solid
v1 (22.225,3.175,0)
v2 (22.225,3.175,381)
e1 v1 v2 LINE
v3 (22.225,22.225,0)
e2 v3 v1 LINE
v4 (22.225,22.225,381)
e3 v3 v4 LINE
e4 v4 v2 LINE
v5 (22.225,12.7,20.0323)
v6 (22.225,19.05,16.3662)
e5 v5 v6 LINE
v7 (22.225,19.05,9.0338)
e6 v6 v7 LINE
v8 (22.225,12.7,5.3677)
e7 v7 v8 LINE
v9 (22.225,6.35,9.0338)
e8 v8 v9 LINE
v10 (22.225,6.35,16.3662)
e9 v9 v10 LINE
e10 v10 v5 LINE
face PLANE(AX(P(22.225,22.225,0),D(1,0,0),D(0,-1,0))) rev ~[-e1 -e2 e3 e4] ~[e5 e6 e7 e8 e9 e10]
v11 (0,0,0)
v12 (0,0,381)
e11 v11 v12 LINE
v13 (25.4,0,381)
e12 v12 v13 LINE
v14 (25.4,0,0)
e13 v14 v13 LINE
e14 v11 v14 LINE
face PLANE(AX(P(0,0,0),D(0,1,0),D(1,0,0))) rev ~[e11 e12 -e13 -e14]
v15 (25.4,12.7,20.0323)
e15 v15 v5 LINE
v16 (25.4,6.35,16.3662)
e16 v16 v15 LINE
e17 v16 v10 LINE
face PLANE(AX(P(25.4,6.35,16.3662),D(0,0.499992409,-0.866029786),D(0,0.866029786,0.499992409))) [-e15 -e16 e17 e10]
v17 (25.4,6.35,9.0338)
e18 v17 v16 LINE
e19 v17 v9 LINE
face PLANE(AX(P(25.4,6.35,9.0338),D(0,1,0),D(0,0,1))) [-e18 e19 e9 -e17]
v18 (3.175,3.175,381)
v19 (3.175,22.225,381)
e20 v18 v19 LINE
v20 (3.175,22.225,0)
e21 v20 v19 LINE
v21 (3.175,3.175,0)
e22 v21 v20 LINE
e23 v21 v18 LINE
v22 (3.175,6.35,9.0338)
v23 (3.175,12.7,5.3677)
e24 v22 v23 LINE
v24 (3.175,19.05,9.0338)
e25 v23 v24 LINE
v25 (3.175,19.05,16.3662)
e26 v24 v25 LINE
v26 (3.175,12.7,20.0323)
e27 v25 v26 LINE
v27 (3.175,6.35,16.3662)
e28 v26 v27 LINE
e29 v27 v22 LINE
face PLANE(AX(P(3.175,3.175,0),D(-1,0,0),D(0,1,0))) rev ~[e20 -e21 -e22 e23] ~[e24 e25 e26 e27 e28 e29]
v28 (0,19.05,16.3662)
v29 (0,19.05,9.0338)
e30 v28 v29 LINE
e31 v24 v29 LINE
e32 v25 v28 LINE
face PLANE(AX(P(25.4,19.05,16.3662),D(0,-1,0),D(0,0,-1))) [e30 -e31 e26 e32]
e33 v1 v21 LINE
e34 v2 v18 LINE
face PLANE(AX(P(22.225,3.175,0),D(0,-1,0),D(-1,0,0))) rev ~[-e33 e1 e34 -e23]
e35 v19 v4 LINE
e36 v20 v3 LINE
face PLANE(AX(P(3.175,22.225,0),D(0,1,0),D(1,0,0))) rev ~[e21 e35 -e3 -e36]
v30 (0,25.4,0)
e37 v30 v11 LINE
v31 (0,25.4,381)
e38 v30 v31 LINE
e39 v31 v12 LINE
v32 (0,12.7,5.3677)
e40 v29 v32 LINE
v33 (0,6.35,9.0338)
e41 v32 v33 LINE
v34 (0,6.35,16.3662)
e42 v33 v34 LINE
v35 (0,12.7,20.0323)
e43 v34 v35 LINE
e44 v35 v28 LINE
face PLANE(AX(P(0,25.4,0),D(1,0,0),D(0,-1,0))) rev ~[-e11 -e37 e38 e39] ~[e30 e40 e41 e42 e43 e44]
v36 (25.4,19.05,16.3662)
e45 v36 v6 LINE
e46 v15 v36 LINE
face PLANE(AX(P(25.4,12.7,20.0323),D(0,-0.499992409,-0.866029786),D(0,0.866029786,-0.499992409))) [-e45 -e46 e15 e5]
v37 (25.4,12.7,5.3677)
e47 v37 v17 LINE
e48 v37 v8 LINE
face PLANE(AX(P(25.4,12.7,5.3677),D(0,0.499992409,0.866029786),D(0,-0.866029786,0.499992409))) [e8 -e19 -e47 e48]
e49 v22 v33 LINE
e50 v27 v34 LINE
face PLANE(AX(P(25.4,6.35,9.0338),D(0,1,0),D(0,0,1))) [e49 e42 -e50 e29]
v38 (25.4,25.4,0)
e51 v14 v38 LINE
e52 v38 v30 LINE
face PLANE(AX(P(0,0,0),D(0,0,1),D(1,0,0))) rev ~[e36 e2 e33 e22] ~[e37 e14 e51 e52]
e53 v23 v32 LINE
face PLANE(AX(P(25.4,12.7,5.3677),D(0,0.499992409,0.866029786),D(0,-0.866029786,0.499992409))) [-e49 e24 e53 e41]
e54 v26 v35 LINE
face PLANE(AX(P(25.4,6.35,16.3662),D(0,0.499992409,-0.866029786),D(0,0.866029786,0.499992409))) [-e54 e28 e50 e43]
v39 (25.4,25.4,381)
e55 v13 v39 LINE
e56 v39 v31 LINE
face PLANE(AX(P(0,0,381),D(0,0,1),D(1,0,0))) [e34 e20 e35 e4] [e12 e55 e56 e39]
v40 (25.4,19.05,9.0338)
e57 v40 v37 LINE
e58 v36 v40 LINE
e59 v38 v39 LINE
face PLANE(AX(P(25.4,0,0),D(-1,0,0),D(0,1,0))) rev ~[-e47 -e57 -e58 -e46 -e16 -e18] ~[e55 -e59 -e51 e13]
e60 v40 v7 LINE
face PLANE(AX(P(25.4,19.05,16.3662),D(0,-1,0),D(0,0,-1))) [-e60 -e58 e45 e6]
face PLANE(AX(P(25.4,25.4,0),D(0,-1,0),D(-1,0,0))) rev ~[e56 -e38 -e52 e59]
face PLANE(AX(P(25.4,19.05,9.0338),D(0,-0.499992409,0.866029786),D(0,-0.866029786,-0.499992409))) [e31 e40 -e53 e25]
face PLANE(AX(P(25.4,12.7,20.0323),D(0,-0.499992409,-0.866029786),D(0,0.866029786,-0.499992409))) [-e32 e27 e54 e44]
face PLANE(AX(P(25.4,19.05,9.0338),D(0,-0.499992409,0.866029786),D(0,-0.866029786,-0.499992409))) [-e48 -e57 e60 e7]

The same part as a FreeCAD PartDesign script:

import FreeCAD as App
import Part
import Sketcher
from FreeCAD import Vector
Q = App.Units.Quantity


def add_polygon(sketch, points):
    """Adds a closed chain of lines whose ends are joined by coincident constraints."""
    first, n = sketch.GeometryCount, len(points)
    for a, b in zip(points, points[1:] + points[:1]):
        sketch.addGeometry(Part.LineSegment(App.Vector(*a, 0), App.Vector(*b, 0)), False)
    for i in range(n):
        sketch.addConstraint(Sketcher.Constraint("Coincident", first + i, 2, first + (i + 1) % n, 1))

doc = App.newDocument("Part")
params = doc.addObject("Spreadsheet::Sheet", "Params")
for row, (alias, value) in enumerate([
    ("sketch1_width", "1 in"),
    ("pad1_length", "15 in"),
    ("pocket1_length", "15 in"),
], start=1):
    params.set(f"A{row}", alias)
    params.set(f"B{row}", "=" + value)
    params.setAlias(f"B{row}", alias)

body = doc.addObject("PartDesign::Body", "Body")

# Sketch on XY plane
sketch1 = body.newObject("Sketcher::SketchObject", "Sketch")
sketch1.AttachmentSupport = (doc.getObject("XY_Plane"), [""])
sketch1.MapMode = "FlatFace"
add_polygon(sketch1, [(0, 25), (0, 0), (25, 0), (25, 25)])  # lines 0-3
add_polygon(sketch1, [(3, 3), (3, 22), (22, 22), (22, 3)])  # lines 4-7
sketch1.addConstraint(Sketcher.Constraint("Vertical", 0))
sketch1.addConstraint(Sketcher.Constraint("Horizontal", 1))
sketch1.addConstraint(Sketcher.Constraint("Vertical", 2))
sketch1.addConstraint(Sketcher.Constraint("Horizontal", 3))
sketch1.addConstraint(Sketcher.Constraint("Vertical", 4))
sketch1.addConstraint(Sketcher.Constraint("Horizontal", 5))
sketch1.addConstraint(Sketcher.Constraint("Vertical", 6))
sketch1.addConstraint(Sketcher.Constraint("Horizontal", 7))
sketch1.addConstraint(Sketcher.Constraint("Coincident", 0, 2, -1, 1))
sketch1.addConstraint(Sketcher.Constraint("Equal", 3, 0))
sketch1.addConstraint(Sketcher.Constraint("Equal", 7, 4))
sketch1.addConstraint(Sketcher.Constraint("DistanceX", 1, 1, 1, 2, Q("1 in")))
sketch1.addConstraint(Sketcher.Constraint("DistanceX", -1, 1, 4, 2, Q("0.125 in")))
sketch1.addConstraint(Sketcher.Constraint("DistanceY", -1, 1, 6, 2, Q("0.125 in")))
sketch1.addConstraint(Sketcher.Constraint("DistanceY", 4, 2, 3, 2, Q("0.125 in")))
sketch1.setExpression("Constraints[19]", "Params.sketch1_width")
pad1 = body.newObject("PartDesign::Pad", "Pad")
pad1.Profile = sketch1
pad1.setExpression("Length", "Params.pad1_length")

# Sketch on YZ plane
sketch2 = body.newObject("Sketcher::SketchObject", "Sketch001")
sketch2.AttachmentSupport = (doc.getObject("YZ_Plane"), [""])
sketch2.MapMode = "FlatFace"
sketch2.AttachmentOffset = App.Placement(Vector(0, 0, 1 * 25.4), App.Rotation())
add_polygon(sketch2, [(6, 9), (13, 5), (19, 9), (19, 16), (13, 20), (6, 16)])  # lines 0-5
sketch2.addConstraint(Sketcher.Constraint("Vertical", 2))
sketch2.addConstraint(Sketcher.Constraint("Vertical", 5))
sketch2.addConstraint(Sketcher.Constraint("Parallel", 0, 3))
sketch2.addConstraint(Sketcher.Constraint("Parallel", 1, 4))
sketch2.addConstraint(Sketcher.Constraint("Horizontal", 2, 2, 4, 2))
sketch2.addConstraint(Sketcher.Constraint("Horizontal", 1, 2, 5, 2))
sketch2.addConstraint(Sketcher.Constraint("Vertical", 0, 2, 3, 2))
sketch2.addConstraint(Sketcher.Constraint("DistanceX", -1, 1, 0, 2, Q("0.5 in")))
sketch2.addConstraint(Sketcher.Constraint("DistanceX", 4, 2, 2, 2, Q("0.5 in")))
sketch2.addConstraint(Sketcher.Constraint("Angle", 0, Q("-29.9995 deg")))
sketch2.addConstraint(Sketcher.Constraint("DistanceY", 0, 2, 2, 2, Q("0.433 in")))
sketch2.addConstraint(Sketcher.Constraint("DistanceY", -1, 1, 0, 2, 5.3677))
pocket1 = body.newObject("PartDesign::Pocket", "Pocket")
pocket1.Profile = sketch2
pocket1.setExpression("Length", "Params.pocket1_length")

doc.recompute()
